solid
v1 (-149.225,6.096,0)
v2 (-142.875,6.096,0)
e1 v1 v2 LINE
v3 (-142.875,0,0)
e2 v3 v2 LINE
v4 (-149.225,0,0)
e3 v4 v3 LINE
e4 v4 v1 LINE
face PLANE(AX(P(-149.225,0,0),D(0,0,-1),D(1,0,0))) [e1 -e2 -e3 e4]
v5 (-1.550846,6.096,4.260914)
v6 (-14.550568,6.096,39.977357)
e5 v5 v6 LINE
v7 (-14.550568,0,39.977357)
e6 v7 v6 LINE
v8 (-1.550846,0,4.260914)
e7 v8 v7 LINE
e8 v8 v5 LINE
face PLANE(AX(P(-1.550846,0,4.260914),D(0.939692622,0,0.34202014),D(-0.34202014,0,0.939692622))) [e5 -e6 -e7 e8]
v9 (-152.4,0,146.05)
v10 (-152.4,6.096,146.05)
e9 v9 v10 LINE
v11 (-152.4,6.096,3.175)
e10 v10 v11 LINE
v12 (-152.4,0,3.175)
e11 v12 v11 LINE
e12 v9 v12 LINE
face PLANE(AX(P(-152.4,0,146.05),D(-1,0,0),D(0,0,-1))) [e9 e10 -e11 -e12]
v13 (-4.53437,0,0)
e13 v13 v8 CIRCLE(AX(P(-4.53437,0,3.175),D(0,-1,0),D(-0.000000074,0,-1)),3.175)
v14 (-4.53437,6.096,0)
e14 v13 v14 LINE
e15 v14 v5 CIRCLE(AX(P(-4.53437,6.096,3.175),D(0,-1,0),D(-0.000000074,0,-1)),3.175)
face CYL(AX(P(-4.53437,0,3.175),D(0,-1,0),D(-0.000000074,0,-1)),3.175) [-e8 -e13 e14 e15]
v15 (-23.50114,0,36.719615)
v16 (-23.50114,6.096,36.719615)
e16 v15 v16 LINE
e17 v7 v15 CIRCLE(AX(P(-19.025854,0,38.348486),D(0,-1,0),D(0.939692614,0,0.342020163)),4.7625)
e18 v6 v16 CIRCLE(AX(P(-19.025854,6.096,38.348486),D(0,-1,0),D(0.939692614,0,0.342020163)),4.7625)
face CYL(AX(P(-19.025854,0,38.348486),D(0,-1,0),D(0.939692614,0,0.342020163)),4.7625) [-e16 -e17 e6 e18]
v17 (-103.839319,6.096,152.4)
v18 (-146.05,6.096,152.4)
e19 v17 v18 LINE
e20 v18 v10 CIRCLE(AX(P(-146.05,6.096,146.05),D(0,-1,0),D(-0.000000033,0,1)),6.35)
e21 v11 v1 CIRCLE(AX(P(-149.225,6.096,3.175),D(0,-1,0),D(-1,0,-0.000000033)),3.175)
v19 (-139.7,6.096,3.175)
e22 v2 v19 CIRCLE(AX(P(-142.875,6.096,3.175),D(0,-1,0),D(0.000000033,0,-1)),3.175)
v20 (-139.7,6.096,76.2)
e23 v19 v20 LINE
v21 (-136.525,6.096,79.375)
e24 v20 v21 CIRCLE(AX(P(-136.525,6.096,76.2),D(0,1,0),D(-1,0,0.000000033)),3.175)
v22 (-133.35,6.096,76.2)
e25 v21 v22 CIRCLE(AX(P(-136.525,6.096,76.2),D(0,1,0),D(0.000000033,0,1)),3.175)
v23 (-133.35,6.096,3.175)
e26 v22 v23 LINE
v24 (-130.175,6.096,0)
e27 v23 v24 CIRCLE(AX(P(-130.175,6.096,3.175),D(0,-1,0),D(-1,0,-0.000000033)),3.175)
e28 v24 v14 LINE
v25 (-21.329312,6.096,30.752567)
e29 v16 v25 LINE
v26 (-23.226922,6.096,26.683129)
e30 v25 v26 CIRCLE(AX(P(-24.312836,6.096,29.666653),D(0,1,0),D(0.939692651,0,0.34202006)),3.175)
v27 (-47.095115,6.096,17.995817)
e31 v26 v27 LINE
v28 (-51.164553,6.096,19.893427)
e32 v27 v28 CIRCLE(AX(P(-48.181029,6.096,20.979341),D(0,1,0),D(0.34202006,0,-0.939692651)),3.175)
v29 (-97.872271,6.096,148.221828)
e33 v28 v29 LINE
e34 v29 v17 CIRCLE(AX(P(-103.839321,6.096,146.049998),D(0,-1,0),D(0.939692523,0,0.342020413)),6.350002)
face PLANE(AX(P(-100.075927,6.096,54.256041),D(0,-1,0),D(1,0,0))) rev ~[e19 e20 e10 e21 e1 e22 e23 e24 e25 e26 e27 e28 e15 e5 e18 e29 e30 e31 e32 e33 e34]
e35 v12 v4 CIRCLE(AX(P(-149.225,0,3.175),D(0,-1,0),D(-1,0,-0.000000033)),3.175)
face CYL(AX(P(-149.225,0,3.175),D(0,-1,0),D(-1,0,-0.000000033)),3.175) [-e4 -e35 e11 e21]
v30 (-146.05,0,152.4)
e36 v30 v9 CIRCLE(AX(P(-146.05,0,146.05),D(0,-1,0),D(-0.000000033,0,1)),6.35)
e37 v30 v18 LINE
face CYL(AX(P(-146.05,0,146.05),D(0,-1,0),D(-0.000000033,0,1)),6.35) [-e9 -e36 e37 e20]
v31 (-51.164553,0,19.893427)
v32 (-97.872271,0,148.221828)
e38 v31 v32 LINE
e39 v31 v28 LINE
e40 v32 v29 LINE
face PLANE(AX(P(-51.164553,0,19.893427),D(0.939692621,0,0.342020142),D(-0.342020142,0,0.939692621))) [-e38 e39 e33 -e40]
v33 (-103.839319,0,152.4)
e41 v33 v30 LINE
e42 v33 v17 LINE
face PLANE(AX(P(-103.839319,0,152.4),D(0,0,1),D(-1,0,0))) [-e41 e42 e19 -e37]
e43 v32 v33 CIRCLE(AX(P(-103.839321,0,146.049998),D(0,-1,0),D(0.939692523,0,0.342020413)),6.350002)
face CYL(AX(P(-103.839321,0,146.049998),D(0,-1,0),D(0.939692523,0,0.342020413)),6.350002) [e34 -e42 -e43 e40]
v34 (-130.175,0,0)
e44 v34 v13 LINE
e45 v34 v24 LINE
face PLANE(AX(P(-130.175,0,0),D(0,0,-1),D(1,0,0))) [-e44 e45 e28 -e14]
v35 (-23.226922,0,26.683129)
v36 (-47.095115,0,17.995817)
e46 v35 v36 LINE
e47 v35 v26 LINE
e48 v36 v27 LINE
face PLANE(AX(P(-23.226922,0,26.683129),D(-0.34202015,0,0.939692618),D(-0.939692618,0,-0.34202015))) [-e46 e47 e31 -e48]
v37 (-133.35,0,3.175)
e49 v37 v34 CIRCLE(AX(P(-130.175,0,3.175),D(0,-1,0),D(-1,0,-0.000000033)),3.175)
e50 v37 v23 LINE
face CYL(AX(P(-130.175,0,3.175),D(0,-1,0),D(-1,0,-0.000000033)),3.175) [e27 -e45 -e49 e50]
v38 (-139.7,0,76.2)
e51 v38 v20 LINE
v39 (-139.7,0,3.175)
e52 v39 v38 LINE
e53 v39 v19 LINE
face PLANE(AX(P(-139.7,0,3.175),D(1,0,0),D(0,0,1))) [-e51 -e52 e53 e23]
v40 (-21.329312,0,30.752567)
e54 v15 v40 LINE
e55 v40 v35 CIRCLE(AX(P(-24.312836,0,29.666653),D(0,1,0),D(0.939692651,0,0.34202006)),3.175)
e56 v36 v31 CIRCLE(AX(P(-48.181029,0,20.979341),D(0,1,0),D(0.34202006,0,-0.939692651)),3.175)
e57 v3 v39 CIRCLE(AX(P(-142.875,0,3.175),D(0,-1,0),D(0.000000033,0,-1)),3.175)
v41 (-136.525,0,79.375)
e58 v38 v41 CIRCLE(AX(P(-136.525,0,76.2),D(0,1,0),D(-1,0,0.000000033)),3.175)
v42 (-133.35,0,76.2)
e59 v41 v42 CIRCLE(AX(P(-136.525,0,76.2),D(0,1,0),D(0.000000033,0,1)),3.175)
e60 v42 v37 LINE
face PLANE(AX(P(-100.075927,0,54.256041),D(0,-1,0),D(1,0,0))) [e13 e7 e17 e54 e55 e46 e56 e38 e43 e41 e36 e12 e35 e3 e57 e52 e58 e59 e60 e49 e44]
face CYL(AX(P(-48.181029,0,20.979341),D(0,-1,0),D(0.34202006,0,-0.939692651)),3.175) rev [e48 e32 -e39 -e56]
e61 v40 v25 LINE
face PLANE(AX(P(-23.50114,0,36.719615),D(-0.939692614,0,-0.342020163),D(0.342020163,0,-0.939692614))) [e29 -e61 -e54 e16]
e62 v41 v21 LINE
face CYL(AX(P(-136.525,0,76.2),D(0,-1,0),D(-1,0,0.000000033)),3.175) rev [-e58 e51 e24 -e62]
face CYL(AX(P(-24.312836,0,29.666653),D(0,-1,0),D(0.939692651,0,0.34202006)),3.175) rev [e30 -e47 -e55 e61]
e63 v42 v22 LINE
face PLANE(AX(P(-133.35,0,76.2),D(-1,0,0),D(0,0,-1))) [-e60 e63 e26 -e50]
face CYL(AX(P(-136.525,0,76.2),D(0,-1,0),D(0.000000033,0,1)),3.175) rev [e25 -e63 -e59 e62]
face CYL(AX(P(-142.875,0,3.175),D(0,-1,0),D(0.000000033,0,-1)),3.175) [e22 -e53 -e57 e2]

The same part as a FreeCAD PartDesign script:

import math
import FreeCAD as App
import Part
import Sketcher

V = App.Vector
Q = App.Units.Quantity

doc = App.newDocument("Part")
params = doc.addObject("Spreadsheet::Sheet", "Params")
for row, (alias, value) in enumerate([
    ("sketch1_radius", "0.25 in"),
    ("sketch1_radius2", "0.2500001 in"),
    ("sketch1_length", "1 in"),
    ("sketch1_radius3", "0.125 in"),
    ("sketch1_radius4", "0.1875 in"),
    ("pad1_length", "0.24 in"),
], start=1):
    params.set(f"A{row}", alias)
    params.set(f"B{row}", "=" + value)
    params.setAlias(f"B{row}", alias)

body = doc.addObject("PartDesign::Body", "Body")

sketch1 = body.newObject("Sketcher::SketchObject", "Sketch")
sketch1.AttachmentSupport = (doc.getObject("XZ_Plane"), [""])
sketch1.MapMode = "FlatFace"
sketch1.addGeometry(Part.LineSegment(V(-103.8, 152.4, 0), V(-146.1, 152.4, 0)), False)
sketch1.addGeometry(Part.ArcOfCircle(Part.Circle(V(-146, 146, 0), V(0, 0, 1), 6.4), math.radians(90), math.radians(180)), False)
sketch1.addGeometry(Part.LineSegment(V(-152.4, 146.1, 0), V(-152.4, 3.2, 0)), False)
sketch1.addGeometry(Part.ArcOfCircle(Part.Circle(V(-149.2, 3.2, 0), V(0, 0, 1), 3.2), math.radians(-180), math.radians(-90)), False)
sketch1.addGeometry(Part.LineSegment(V(-149.2, 0, 0), V(-142.9, 0, 0)), False)
sketch1.addGeometry(Part.ArcOfCircle(Part.Circle(V(-142.9, 3.2, 0), V(0, 0, 1), 3.2), math.radians(-90), math.radians(0)), False)
sketch1.addGeometry(Part.LineSegment(V(-139.7, 3.2, 0), V(-139.7, 76.2, 0)), False)
sketch1.addGeometry(Part.ArcOfCircle(Part.Circle(V(-136.5, 76.2, 0), V(0, 0, 1), 3.2), math.radians(90), math.radians(180)), False)
sketch1.addGeometry(Part.ArcOfCircle(Part.Circle(V(-136.5, 76.2, 0), V(0, 0, 1), 3.2), math.radians(0), math.radians(90)), False)
sketch1.addGeometry(Part.LineSegment(V(-133.3, 76.2, 0), V(-133.3, 3.2, 0)), False)
sketch1.addGeometry(Part.ArcOfCircle(Part.Circle(V(-130.2, 3.2, 0), V(0, 0, 1), 3.2), math.radians(-180), math.radians(-90)), False)
sketch1.addGeometry(Part.LineSegment(V(-130.2, 0, 0), V(-4.5, 0, 0)), False)
sketch1.addGeometry(Part.ArcOfCircle(Part.Circle(V(-4.5, 3.2, 0), V(0, 0, 1), 3.2), math.radians(-90), math.radians(20)), False)
sketch1.addGeometry(Part.LineSegment(V(-1.6, 4.3, 0), V(-14.6, 40, 0)), False)
sketch1.addGeometry(Part.ArcOfCircle(Part.Circle(V(-19, 38.3, 0), V(0, 0, 1), 4.8), math.radians(20), math.radians(200)), False)
sketch1.addGeometry(Part.LineSegment(V(-23.5, 36.7, 0), V(-21.3, 30.8, 0)), False)
sketch1.addGeometry(Part.ArcOfCircle(Part.Circle(V(-24.3, 29.7, 0), V(0, 0, 1), 3.2), math.radians(-70), math.radians(20)), False)
sketch1.addGeometry(Part.LineSegment(V(-23.2, 26.7, 0), V(-47.1, 18, 0)), False)
sketch1.addGeometry(Part.ArcOfCircle(Part.Circle(V(-48.2, 21, 0), V(0, 0, 1), 3.2), math.radians(-160), math.radians(-70)), False)
sketch1.addGeometry(Part.LineSegment(V(-51.2, 19.9, 0), V(-97.9, 148.2, 0)), False)
sketch1.addGeometry(Part.ArcOfCircle(Part.Circle(V(-103.8, 146, 0), V(0, 0, 1), 6.4), math.radians(20), math.radians(90)), False)
sketch1.addConstraint(Sketcher.Constraint("Tangent", 0, 2, 1, 1))
sketch1.addConstraint(Sketcher.Constraint("Tangent", 1, 2, 2, 1))
sketch1.addConstraint(Sketcher.Constraint("Tangent", 2, 2, 3, 1))
sketch1.addConstraint(Sketcher.Constraint("Tangent", 3, 2, 4, 1))
sketch1.addConstraint(Sketcher.Constraint("Tangent", 4, 2, 5, 1))
sketch1.addConstraint(Sketcher.Constraint("Tangent", 5, 2, 6, 1))
sketch1.addConstraint(Sketcher.Constraint("Tangent", 6, 2, 7, 2))
sketch1.addConstraint(Sketcher.Constraint("Tangent", 7, 1, 8, 2))
sketch1.addConstraint(Sketcher.Constraint("Tangent", 8, 1, 9, 1))
sketch1.addConstraint(Sketcher.Constraint("Tangent", 9, 2, 10, 1))
sketch1.addConstraint(Sketcher.Constraint("Tangent", 10, 2, 11, 1))
sketch1.addConstraint(Sketcher.Constraint("Tangent", 11, 2, 12, 1))
sketch1.addConstraint(Sketcher.Constraint("Tangent", 12, 2, 13, 1))
sketch1.addConstraint(Sketcher.Constraint("Tangent", 13, 2, 14, 1))
sketch1.addConstraint(Sketcher.Constraint("Tangent", 14, 2, 15, 1))
sketch1.addConstraint(Sketcher.Constraint("Tangent", 15, 2, 16, 2))
sketch1.addConstraint(Sketcher.Constraint("Tangent", 16, 1, 17, 1))
sketch1.addConstraint(Sketcher.Constraint("Tangent", 17, 2, 18, 2))
sketch1.addConstraint(Sketcher.Constraint("Tangent", 18, 1, 19, 1))
sketch1.addConstraint(Sketcher.Constraint("Tangent", 19, 2, 20, 1))
sketch1.addConstraint(Sketcher.Constraint("Tangent", 20, 2, 0, 1))
sketch1.addConstraint(Sketcher.Constraint("Horizontal", 0))
sketch1.addConstraint(Sketcher.Constraint("Vertical", 2))
sketch1.addConstraint(Sketcher.Constraint("Horizontal", 4))
sketch1.addConstraint(Sketcher.Constraint("Vertical", 6))
sketch1.addConstraint(Sketcher.Constraint("Vertical", 9))
sketch1.addConstraint(Sketcher.Constraint("Horizontal", 11))
sketch1.addConstraint(Sketcher.Constraint("Equal", 3, 5))
sketch1.addConstraint(Sketcher.Constraint("Equal", 5, 7))
sketch1.addConstraint(Sketcher.Constraint("Equal", 7, 8))
sketch1.addConstraint(Sketcher.Constraint("Equal", 8, 10))
sketch1.addConstraint(Sketcher.Constraint("Equal", 10, 12))
sketch1.addConstraint(Sketcher.Constraint("Equal", 12, 16))
sketch1.addConstraint(Sketcher.Constraint("Equal", 16, 18))
sketch1.addConstraint(Sketcher.Constraint("PointOnObject", 3, 2, -1))
sketch1.addConstraint(Sketcher.Constraint("PointOnObject", 10, 2, -1))
sketch1.addConstraint(Sketcher.Constraint("Parallel", 13, 15))
sketch1.addConstraint(Sketcher.Constraint("Perpendicular", 15, 17))
sketch1.addConstraint(Sketcher.Constraint("Perpendicular", 17, 19))
sketch1.addConstraint(Sketcher.Constraint("Vertical", 8, 3, 7, 1))
sketch1.addConstraint(Sketcher.Constraint("Radius", 1, Q("0.25 in")))
sketch1.addConstraint(Sketcher.Constraint("Radius", 20, Q("0.2500001 in")))
sketch1.addConstraint(Sketcher.Constraint("Distance", 17, Q("1 in")))
sketch1.addConstraint(Sketcher.Constraint("DistanceY", -1, 1, 7, 3, Q("3 in")))
sketch1.addConstraint(Sketcher.Constraint("DistanceY", -1, 1, 0, 2, Q("6 in")))
sketch1.addConstraint(Sketcher.Constraint("DistanceX", 1, 2, -1, 1, Q("6 in")))
sketch1.addConstraint(Sketcher.Constraint("Angle", 13, Q("110 deg")))
sketch1.addConstraint(Sketcher.Constraint("Radius", 3, Q("0.125 in")))
sketch1.addConstraint(Sketcher.Constraint("Radius", 14, Q("0.1875 in")))
sketch1.addConstraint(Sketcher.Constraint("DistanceX", 4, 1, 4, 2, Q("0.25 in")))
sketch1.addConstraint(Sketcher.Constraint("Distance", 15, Q("0.25 in")))
sketch1.addConstraint(Sketcher.Constraint("DistanceX", 13, 2, 12, 2, Q("0.5118001 in")))
sketch1.addConstraint(Sketcher.Constraint("DistanceX", 0, 2, 0, 1, 42.210681))
sketch1.setExpression("Constraints[40]", "Params.sketch1_radius")
sketch1.setExpression("Constraints[41]", "Params.sketch1_radius2")
sketch1.setExpression("Constraints[42]", "Params.sketch1_length")
sketch1.setExpression("Constraints[47]", "Params.sketch1_radius3")
sketch1.setExpression("Constraints[48]", "Params.sketch1_radius4")
pad1 = body.newObject("PartDesign::Pad", "Pad")
pad1.Profile = sketch1
pad1.setExpression("Length", "Params.pad1_length")
pad1.Reversed = True

doc.recompute()
